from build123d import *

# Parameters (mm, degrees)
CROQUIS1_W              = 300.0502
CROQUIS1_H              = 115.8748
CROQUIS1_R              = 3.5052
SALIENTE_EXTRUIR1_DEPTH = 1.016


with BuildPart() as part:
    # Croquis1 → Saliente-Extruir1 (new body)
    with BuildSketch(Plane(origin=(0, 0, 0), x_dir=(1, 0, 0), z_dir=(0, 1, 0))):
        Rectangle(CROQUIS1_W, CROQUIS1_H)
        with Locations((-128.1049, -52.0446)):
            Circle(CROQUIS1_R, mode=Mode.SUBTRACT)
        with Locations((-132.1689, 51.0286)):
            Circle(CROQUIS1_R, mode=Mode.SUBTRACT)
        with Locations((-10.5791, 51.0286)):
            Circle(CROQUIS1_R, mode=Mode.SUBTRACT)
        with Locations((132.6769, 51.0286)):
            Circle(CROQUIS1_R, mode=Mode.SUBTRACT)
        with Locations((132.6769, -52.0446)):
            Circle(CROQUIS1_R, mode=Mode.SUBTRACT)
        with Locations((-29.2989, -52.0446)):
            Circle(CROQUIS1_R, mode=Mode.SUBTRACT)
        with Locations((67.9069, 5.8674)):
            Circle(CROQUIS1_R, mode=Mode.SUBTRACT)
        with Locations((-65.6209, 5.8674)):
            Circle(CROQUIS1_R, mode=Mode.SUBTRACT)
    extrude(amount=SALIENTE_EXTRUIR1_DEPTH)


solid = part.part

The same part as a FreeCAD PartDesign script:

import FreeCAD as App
import Part
import Sketcher
Q = App.Units.Quantity


def add_polygon(sketch, points):
    """Adds a closed chain of lines whose ends are joined by coincident constraints."""
    first, n = sketch.GeometryCount, len(points)
    for a, b in zip(points, points[1:] + points[:1]):
        sketch.addGeometry(Part.LineSegment(App.Vector(*a, 0), App.Vector(*b, 0)), False)
    for i in range(n):
        sketch.addConstraint(Sketcher.Constraint("Coincident", first + i, 2, first + (i + 1) % n, 1))

doc = App.newDocument("Part")
body = doc.addObject("PartDesign::Body", "Body")

sketch1 = body.newObject("Sketcher::SketchObject", "Sketch")
sketch1.AttachmentSupport = (doc.getObject("XZ_Plane"), [""])
sketch1.MapMode = "FlatFace"
add_polygon(sketch1, [(-150, -57.9), (-150, 57.9), (150, 57.9), (150, -57.9)])
sketch1.addGeometry(Part.Circle(App.Vector(-128.1, 52, 0), App.Vector(0, 0, 1), 3.5), False)
sketch1.addGeometry(Part.Circle(App.Vector(-29.3, 52, 0), App.Vector(0, 0, 1), 3.5), False)
sketch1.addGeometry(Part.Circle(App.Vector(132.7, 52, 0), App.Vector(0, 0, 1), 3.5), False)
sketch1.addGeometry(Part.Circle(App.Vector(-65.6, -5.9, 0), App.Vector(0, 0, 1), 3.5), False)
sketch1.addGeometry(Part.Circle(App.Vector(-132.2, -51, 0), App.Vector(0, 0, 1), 3.5), False)
sketch1.addGeometry(Part.Circle(App.Vector(-10.6, -51, 0), App.Vector(0, 0, 1), 3.5), False)
sketch1.addGeometry(Part.Circle(App.Vector(67.9, -5.9, 0), App.Vector(0, 0, 1), 3.5), False)
sketch1.addGeometry(Part.Circle(App.Vector(132.7, -51, 0), App.Vector(0, 0, 1), 3.5), False)
sketch1.addConstraint(Sketcher.Constraint("Vertical", 0))
sketch1.addConstraint(Sketcher.Constraint("Horizontal", 1))
sketch1.addConstraint(Sketcher.Constraint("Vertical", 2))
sketch1.addConstraint(Sketcher.Constraint("Horizontal", 3))
sketch1.addConstraint(Sketcher.Constraint("Equal", 4, 5))
sketch1.addConstraint(Sketcher.Constraint("Equal", 5, 6))
sketch1.addConstraint(Sketcher.Constraint("Equal", 6, 7))
sketch1.addConstraint(Sketcher.Constraint("Equal", 7, 8))
sketch1.addConstraint(Sketcher.Constraint("Equal", 8, 9))
sketch1.addConstraint(Sketcher.Constraint("Equal", 9, 10))
sketch1.addConstraint(Sketcher.Constraint("Equal", 10, 11))
sketch1.addConstraint(Sketcher.Constraint("Symmetric", 0, 2, 2, 2, -1, 1))
sketch1.addConstraint(Sketcher.Constraint("Horizontal", 4, 3, 5, 3))
sketch1.addConstraint(Sketcher.Constraint("Horizontal", 5, 3, 6, 3))
sketch1.addConstraint(Sketcher.Constraint("Horizontal", 8, 3, 9, 3))
sketch1.addConstraint(Sketcher.Constraint("Horizontal", 7, 3, 10, 3))
sketch1.addConstraint(Sketcher.Constraint("Horizontal", 9, 3, 11, 3))
sketch1.addConstraint(Sketcher.Constraint("Vertical", 6, 3, 11, 3))
sketch1.addConstraint(Sketcher.Constraint("Diameter", 4, Q("0.276 in")))
sketch1.addConstraint(Sketcher.Constraint("DistanceX", 1, 1, 1, 2, Q("11.813 in")))
sketch1.addConstraint(Sketcher.Constraint("DistanceY", 0, 1, 0, 2, Q("4.562 in")))
sketch1.addConstraint(Sketcher.Constraint("DistanceX", 4, 3, 5, 3, Q("3.89 in")))
sketch1.addConstraint(Sketcher.Constraint("DistanceX", 7, 3, 5, 3, Q("1.43 in")))
sketch1.addConstraint(Sketcher.Constraint("DistanceY", 7, 3, 5, 3, Q("2.28 in")))
sketch1.addConstraint(Sketcher.Constraint("DistanceX", 8, 3, 7, 3, Q("2.62 in")))
sketch1.addConstraint(Sketcher.Constraint("DistanceX", 9, 3, 6, 3, Q("5.64 in")))
sketch1.addConstraint(Sketcher.Constraint("DistanceX", 10, 3, 6, 3, Q("2.55 in")))
sketch1.addConstraint(Sketcher.Constraint("DistanceY", 8, 3, 0, 2, Q("4.29 in")))
sketch1.addConstraint(Sketcher.Constraint("DistanceX", 0, 2, 9, 3, Q("5.49 in")))
sketch1.addConstraint(Sketcher.Constraint("DistanceX", 5, 3, 1, 2, Q("7.06 in")))
sketch1.addConstraint(Sketcher.Constraint("DistanceY", 2, 2, 10, 3, Q("2.05 in")))
pad1 = body.newObject("PartDesign::Pad", "Pad")
pad1.Profile = sketch1
pad1.Length = Q("0.04 in")
pad1.Reversed = True

doc.recompute()
